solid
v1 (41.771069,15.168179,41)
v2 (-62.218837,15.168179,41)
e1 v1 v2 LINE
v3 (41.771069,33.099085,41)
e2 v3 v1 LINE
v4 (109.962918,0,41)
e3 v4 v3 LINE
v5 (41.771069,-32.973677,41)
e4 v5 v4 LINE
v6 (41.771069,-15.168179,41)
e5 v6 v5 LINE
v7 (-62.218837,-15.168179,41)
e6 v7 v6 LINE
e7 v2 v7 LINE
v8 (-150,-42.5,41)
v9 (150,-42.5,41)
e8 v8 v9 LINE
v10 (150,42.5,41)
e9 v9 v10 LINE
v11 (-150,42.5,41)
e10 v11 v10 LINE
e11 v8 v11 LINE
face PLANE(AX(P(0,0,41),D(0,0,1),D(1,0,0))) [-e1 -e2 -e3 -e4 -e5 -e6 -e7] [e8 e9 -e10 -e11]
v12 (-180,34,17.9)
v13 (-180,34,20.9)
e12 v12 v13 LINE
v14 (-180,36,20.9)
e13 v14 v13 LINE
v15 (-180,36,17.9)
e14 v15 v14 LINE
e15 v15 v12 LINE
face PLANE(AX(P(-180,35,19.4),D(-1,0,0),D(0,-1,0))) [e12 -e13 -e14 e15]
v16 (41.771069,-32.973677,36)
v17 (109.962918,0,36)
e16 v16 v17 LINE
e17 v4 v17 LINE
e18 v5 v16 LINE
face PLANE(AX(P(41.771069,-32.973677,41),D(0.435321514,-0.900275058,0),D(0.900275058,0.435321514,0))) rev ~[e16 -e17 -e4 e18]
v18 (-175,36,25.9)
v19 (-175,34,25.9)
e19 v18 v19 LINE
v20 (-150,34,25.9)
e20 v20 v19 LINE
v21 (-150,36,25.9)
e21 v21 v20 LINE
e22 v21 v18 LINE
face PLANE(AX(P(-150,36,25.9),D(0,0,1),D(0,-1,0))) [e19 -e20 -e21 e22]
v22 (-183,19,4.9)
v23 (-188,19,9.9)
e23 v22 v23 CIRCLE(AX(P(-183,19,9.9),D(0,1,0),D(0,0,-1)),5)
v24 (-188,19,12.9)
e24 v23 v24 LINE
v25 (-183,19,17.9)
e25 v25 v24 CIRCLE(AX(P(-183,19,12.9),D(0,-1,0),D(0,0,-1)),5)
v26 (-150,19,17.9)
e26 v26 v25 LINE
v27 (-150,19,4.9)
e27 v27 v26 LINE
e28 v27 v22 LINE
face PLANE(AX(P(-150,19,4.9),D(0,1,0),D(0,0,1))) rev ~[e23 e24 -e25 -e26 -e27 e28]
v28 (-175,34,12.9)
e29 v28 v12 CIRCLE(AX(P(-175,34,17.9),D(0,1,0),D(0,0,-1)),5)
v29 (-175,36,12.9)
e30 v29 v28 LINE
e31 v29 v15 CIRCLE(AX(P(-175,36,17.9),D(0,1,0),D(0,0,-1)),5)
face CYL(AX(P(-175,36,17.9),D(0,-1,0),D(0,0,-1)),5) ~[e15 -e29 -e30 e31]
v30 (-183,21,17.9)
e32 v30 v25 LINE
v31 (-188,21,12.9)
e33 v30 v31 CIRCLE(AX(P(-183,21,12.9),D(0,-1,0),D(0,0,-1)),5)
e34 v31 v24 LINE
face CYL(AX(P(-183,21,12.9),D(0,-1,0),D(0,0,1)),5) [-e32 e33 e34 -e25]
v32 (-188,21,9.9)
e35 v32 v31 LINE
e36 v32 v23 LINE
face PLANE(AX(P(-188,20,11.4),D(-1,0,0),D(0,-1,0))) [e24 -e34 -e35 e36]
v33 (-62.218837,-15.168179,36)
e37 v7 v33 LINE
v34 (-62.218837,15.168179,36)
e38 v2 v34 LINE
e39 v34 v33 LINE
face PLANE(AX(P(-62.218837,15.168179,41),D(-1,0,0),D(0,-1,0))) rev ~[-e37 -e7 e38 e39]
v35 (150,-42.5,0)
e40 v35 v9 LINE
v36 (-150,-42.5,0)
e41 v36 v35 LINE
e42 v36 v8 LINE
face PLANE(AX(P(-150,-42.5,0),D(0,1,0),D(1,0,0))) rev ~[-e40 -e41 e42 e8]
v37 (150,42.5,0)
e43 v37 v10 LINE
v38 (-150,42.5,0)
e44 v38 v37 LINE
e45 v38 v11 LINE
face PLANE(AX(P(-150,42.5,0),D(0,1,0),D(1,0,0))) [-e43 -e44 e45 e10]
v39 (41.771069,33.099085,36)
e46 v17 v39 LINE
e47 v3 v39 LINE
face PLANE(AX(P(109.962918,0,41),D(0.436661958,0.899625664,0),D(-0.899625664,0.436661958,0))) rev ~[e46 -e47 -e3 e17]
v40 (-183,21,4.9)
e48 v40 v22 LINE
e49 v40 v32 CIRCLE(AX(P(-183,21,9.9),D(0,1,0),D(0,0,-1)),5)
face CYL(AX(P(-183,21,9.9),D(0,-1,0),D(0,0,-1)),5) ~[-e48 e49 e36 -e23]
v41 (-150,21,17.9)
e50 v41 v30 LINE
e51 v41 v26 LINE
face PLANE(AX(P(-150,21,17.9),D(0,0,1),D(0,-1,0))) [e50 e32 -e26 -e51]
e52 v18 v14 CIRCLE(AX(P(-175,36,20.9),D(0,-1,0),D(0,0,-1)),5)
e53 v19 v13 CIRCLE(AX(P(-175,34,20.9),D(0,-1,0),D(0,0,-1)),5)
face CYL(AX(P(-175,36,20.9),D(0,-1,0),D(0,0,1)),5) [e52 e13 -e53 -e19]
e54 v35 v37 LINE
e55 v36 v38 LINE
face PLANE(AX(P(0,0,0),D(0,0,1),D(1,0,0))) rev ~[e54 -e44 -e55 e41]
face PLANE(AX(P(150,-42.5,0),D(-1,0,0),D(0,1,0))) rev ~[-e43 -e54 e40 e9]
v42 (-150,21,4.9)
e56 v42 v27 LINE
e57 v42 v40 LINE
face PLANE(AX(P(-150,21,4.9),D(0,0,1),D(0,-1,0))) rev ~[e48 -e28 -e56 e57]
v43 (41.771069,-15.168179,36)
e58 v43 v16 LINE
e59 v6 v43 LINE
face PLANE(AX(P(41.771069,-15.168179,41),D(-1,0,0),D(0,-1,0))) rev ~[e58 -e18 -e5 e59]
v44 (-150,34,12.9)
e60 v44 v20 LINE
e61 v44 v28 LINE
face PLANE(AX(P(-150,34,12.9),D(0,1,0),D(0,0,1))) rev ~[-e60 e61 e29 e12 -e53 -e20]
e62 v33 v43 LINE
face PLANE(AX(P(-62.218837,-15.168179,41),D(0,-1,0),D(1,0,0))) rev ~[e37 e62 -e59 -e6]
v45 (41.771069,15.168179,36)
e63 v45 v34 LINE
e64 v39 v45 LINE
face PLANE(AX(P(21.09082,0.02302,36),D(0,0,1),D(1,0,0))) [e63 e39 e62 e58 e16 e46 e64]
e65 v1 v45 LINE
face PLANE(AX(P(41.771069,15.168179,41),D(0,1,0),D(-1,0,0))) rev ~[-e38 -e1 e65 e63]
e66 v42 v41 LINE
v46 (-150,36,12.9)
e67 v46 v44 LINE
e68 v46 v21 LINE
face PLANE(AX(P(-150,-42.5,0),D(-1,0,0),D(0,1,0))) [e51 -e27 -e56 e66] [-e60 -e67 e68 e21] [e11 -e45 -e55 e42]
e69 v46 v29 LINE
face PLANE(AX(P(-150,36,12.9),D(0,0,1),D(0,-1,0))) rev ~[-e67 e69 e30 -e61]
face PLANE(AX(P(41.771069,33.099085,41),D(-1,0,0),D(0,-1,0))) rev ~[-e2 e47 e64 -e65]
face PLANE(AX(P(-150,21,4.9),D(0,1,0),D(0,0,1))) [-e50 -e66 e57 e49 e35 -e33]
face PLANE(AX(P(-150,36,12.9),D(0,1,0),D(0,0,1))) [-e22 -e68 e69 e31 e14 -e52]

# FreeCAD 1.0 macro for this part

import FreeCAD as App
import Part
import Sketcher


def edges_at(feature, points):
    """Names of the edges that pass closest to the given points."""
    edges = feature.Shape.Edges
    near = lambda p: min(range(len(edges)), key=lambda i: edges[i].distToShape(Part.Vertex(*p))[0])
    return sorted({f"Edge{near(p) + 1}" for p in points})

doc = App.newDocument("Part")
body = doc.addObject("PartDesign::Body", "Body")

# Sketch on XY plane
sketch1 = body.newObject("Sketcher::SketchObject", "Sketch")
sketch1.AttachmentSupport = (doc.getObject("XY_Plane"), [""])
sketch1.MapMode = "FlatFace"
sketch1.addGeometry(Part.LineSegment(App.Vector(-150, 42, 0), App.Vector(-150, -42, 0)), False)
sketch1.addGeometry(Part.LineSegment(App.Vector(-150, -42, 0), App.Vector(150, -42, 0)), False)
sketch1.addGeometry(Part.LineSegment(App.Vector(150, -42, 0), App.Vector(150, 42, 0)), False)
sketch1.addGeometry(Part.LineSegment(App.Vector(150, 42, 0), App.Vector(-150, 42, 0)), False)
sketch1.addConstraint(Sketcher.Constraint("Coincident", 0, 2, 1, 1))
sketch1.addConstraint(Sketcher.Constraint("Coincident", 1, 2, 2, 1))
sketch1.addConstraint(Sketcher.Constraint("Coincident", 2, 2, 3, 1))
sketch1.addConstraint(Sketcher.Constraint("Coincident", 3, 2, 0, 1))
sketch1.addConstraint(Sketcher.Constraint("Vertical", 0))
sketch1.addConstraint(Sketcher.Constraint("Horizontal", 1))
sketch1.addConstraint(Sketcher.Constraint("Vertical", 2))
sketch1.addConstraint(Sketcher.Constraint("Horizontal", 3))
sketch1.addConstraint(Sketcher.Constraint("Symmetric", 0, 2, 2, 2, -1, 1))
sketch1.addConstraint(Sketcher.Constraint("DistanceX", 1, 1, 1, 2, 300.0))
sketch1.addConstraint(Sketcher.Constraint("DistanceY", 0, 2, 0, 1, 85.0))
pad1 = body.newObject("PartDesign::Pad", "Pad")
pad1.Profile = sketch1
pad1.Length = 41

# Sketch on YZ plane
sketch2 = body.newObject("Sketcher::SketchObject", "Sketch001")
sketch2.AttachmentSupport = (doc.getObject("YZ_Plane"), [""])
sketch2.MapMode = "FlatFace"
sketch2.AttachmentOffset = App.Placement(App.Vector(0, 0, -150), App.Rotation())
sketch2.addGeometry(Part.LineSegment(App.Vector(21, 17.9, 0), App.Vector(21, 4.9, 0)), False)
sketch2.addGeometry(Part.LineSegment(App.Vector(21, 4.9, 0), App.Vector(19, 4.9, 0)), False)
sketch2.addGeometry(Part.LineSegment(App.Vector(19, 4.9, 0), App.Vector(19, 17.9, 0)), False)
sketch2.addGeometry(Part.LineSegment(App.Vector(19, 17.9, 0), App.Vector(21, 17.9, 0)), False)
sketch2.addConstraint(Sketcher.Constraint("Coincident", 0, 2, 1, 1))
sketch2.addConstraint(Sketcher.Constraint("Coincident", 1, 2, 2, 1))
sketch2.addConstraint(Sketcher.Constraint("Coincident", 2, 2, 3, 1))
sketch2.addConstraint(Sketcher.Constraint("Coincident", 3, 2, 0, 1))
sketch2.addConstraint(Sketcher.Constraint("Vertical", 0))
sketch2.addConstraint(Sketcher.Constraint("Horizontal", 1))
sketch2.addConstraint(Sketcher.Constraint("Vertical", 2))
sketch2.addConstraint(Sketcher.Constraint("Horizontal", 3))
sketch2.addConstraint(Sketcher.Constraint("DistanceX", 1, 2, 1, 1, 2.0))
sketch2.addConstraint(Sketcher.Constraint("DistanceY", 0, 2, 0, 1, 13.0))
sketch2.addConstraint(Sketcher.Constraint("DistanceX", -1, 1, 0, 2, 21.0))
sketch2.addConstraint(Sketcher.Constraint("DistanceY", -1, 1, 0, 2, 4.9))
pad2 = body.newObject("PartDesign::Pad", "Pad001")
pad2.Profile = sketch2
pad2.Length = 38
pad2.Reversed = True

# Sketch on YZ plane
sketch3 = body.newObject("Sketcher::SketchObject", "Sketch002")
sketch3.AttachmentSupport = (doc.getObject("YZ_Plane"), [""])
sketch3.MapMode = "FlatFace"
sketch3.AttachmentOffset = App.Placement(App.Vector(0, 0, -150), App.Rotation())
sketch3.addGeometry(Part.LineSegment(App.Vector(36, 25.9, 0), App.Vector(36, 12.9, 0)), False)
sketch3.addGeometry(Part.LineSegment(App.Vector(36, 12.9, 0), App.Vector(34, 12.9, 0)), False)
sketch3.addGeometry(Part.LineSegment(App.Vector(34, 12.9, 0), App.Vector(34, 25.9, 0)), False)
sketch3.addGeometry(Part.LineSegment(App.Vector(34, 25.9, 0), App.Vector(36, 25.9, 0)), False)
sketch3.addConstraint(Sketcher.Constraint("Coincident", 0, 2, 1, 1))
sketch3.addConstraint(Sketcher.Constraint("Coincident", 1, 2, 2, 1))
sketch3.addConstraint(Sketcher.Constraint("Coincident", 2, 2, 3, 1))
sketch3.addConstraint(Sketcher.Constraint("Coincident", 3, 2, 0, 1))
sketch3.addConstraint(Sketcher.Constraint("Vertical", 0))
sketch3.addConstraint(Sketcher.Constraint("Horizontal", 1))
sketch3.addConstraint(Sketcher.Constraint("Vertical", 2))
sketch3.addConstraint(Sketcher.Constraint("Horizontal", 3))
sketch3.addConstraint(Sketcher.Constraint("DistanceX", 1, 2, 1, 1, 2.0))
sketch3.addConstraint(Sketcher.Constraint("DistanceY", 0, 2, 0, 1, 13.0))
sketch3.addConstraint(Sketcher.Constraint("DistanceX", -1, 1, 0, 2, 36.0))
sketch3.addConstraint(Sketcher.Constraint("DistanceY", -1, 1, 0, 2, 12.9))
pad3 = body.newObject("PartDesign::Pad", "Pad002")
pad3.Profile = sketch3
pad3.Length = 30
pad3.Reversed = True
doc.recompute()

fillet = body.newObject("PartDesign::Fillet", "Fillet")
fillet.Base = (pad3, edges_at(pad3, [(-180, 35, 25.9), (-180, 35, 12.9)]))
fillet.Radius = 5
doc.recompute()

fillet2 = body.newObject("PartDesign::Fillet", "Fillet001")
fillet2.Base = (fillet, edges_at(fillet, [(-188, 20, 17.9), (-188, 20, 4.9)]))
fillet2.Radius = 5

# Sketch on XY plane
sketch4 = body.newObject("Sketcher::SketchObject", "Sketch003")
sketch4.AttachmentSupport = (doc.getObject("XY_Plane"), [""])
sketch4.MapMode = "FlatFace"
sketch4.AttachmentOffset = App.Placement(App.Vector(0, 0, 41), App.Rotation())
sketch4.addGeometry(Part.LineSegment(App.Vector(-62, -15, 0), App.Vector(42, -15, 0)), False)
sketch4.addGeometry(Part.LineSegment(App.Vector(42, -15, 0), App.Vector(42, -33, 0)), False)
sketch4.addGeometry(Part.LineSegment(App.Vector(42, -33, 0), App.Vector(110, 0, 0)), False)
sketch4.addGeometry(Part.LineSegment(App.Vector(110, 0, 0), App.Vector(42, 33, 0)), False)
sketch4.addGeometry(Part.LineSegment(App.Vector(42, 33, 0), App.Vector(42, 15, 0)), False)
sketch4.addGeometry(Part.LineSegment(App.Vector(42, 15, 0), App.Vector(-62, 15, 0)), False)
sketch4.addGeometry(Part.LineSegment(App.Vector(-62, 15, 0), App.Vector(-62, -15, 0)), False)
sketch4.addConstraint(Sketcher.Constraint("Coincident", 0, 2, 1, 1))
sketch4.addConstraint(Sketcher.Constraint("Coincident", 1, 2, 2, 1))
sketch4.addConstraint(Sketcher.Constraint("Coincident", 2, 2, 3, 1))
sketch4.addConstraint(Sketcher.Constraint("Coincident", 3, 2, 4, 1))
sketch4.addConstraint(Sketcher.Constraint("Coincident", 4, 2, 5, 1))
sketch4.addConstraint(Sketcher.Constraint("Coincident", 5, 2, 6, 1))
sketch4.addConstraint(Sketcher.Constraint("Coincident", 6, 2, 0, 1))
sketch4.addConstraint(Sketcher.Constraint("Horizontal", 0))
sketch4.addConstraint(Sketcher.Constraint("Vertical", 1))
sketch4.addConstraint(Sketcher.Constraint("Vertical", 4))
sketch4.addConstraint(Sketcher.Constraint("Horizontal", 5))
sketch4.addConstraint(Sketcher.Constraint("Vertical", 6))
sketch4.addConstraint(Sketcher.Constraint("Symmetric", 0, 2, 4, 2, -1))
sketch4.addConstraint(Sketcher.Constraint("PointOnObject", 2, 2, -1))
sketch4.addConstraint(Sketcher.Constraint("DistanceY", 1, 2, 1, 1, 17.805498))
sketch4.addConstraint(Sketcher.Constraint("DistanceY", 6, 2, 6, 1, 30.336358))
sketch4.addConstraint(Sketcher.Constraint("Distance", 2, 75.745572))
sketch4.addConstraint(Sketcher.Constraint("Distance", 3, 75.800249))
sketch4.addConstraint(Sketcher.Constraint("DistanceX", 0, 1, 0, 2, 103.989906))
sketch4.addConstraint(Sketcher.Constraint("DistanceX", -1, 1, 0, 2, 41.771069))
pocket1 = body.newObject("PartDesign::Pocket", "Pocket")
pocket1.Profile = sketch4
pocket1.Length = 5

doc.recompute()
